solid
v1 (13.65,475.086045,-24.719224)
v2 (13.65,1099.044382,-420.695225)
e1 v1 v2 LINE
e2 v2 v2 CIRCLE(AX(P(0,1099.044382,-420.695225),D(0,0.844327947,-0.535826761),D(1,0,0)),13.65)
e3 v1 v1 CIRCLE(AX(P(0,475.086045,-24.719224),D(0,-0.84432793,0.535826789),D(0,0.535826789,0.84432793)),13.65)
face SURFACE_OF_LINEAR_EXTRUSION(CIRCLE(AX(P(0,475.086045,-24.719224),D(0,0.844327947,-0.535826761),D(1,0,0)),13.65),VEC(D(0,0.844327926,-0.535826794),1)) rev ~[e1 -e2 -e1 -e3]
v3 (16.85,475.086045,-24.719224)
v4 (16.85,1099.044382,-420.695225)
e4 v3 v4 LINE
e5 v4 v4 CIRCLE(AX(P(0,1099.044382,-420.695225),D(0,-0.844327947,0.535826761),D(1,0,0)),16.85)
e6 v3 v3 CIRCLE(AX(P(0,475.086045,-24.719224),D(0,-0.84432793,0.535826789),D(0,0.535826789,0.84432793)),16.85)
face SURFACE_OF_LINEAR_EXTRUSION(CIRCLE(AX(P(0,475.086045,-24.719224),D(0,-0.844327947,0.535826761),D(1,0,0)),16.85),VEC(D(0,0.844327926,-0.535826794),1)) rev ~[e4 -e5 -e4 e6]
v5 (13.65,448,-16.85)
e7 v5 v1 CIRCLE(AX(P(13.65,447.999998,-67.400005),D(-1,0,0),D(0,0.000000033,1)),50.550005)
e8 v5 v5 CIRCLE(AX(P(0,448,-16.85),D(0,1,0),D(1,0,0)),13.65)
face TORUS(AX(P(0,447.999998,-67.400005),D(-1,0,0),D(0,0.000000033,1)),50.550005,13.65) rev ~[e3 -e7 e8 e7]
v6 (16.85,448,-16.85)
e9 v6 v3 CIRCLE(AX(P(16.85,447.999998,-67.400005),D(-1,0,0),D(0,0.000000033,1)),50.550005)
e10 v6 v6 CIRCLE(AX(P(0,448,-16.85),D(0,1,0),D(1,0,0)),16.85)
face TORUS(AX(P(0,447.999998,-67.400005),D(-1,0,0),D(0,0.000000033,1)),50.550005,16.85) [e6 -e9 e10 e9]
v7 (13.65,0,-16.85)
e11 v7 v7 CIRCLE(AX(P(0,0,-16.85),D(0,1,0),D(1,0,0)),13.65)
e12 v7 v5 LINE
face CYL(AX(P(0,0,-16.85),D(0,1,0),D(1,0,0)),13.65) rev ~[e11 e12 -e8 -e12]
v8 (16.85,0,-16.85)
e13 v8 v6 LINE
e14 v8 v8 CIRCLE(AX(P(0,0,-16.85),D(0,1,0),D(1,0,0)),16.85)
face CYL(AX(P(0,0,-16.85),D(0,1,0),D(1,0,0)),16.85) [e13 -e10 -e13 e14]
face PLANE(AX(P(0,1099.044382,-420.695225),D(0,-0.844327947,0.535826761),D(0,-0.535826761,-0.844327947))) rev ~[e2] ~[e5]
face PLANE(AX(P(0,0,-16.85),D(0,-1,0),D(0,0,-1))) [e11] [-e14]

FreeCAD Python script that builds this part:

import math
import FreeCAD as App
import Part
import Sketcher
from FreeCAD import Vector
Q = App.Units.Quantity

doc = App.newDocument("Part")
params = doc.addObject("Spreadsheet::Sheet", "Params")
for row, (alias, value) in enumerate([
    ("sketch1_diameter", "33.7 mm"),
    ("sketch1_diameter2", "27.3 mm"),
    ("sketch2_width", "448 mm"),
    ("sketch2_length", "739 mm"),
], start=1):
    params.set(f"A{row}", alias)
    params.set(f"B{row}", "=" + value)
    params.setAlias(f"B{row}", alias)

body = doc.addObject("PartDesign::Body", "Body")

sketch1 = body.newObject("Sketcher::SketchObject", "Sketch")
sketch1.AttachmentSupport = (doc.getObject("XZ_Plane"), [""])
sketch1.MapMode = "FlatFace"
sketch1.addGeometry([
    Part.Circle(Vector(0, -17, 0), Vector(0, 0, 1), 17),
    Part.Circle(Vector(0, -17, 0), Vector(0, 0, 1), 14),
], False)
sketch1.addConstraint([
    Sketcher.Constraint("Coincident", 1, 3, 0, 3),
    Sketcher.Constraint("PointOnObject", 0, 3, -2),
    Sketcher.Constraint("Diameter", 0, Q("33.7 mm")),
    Sketcher.Constraint("Diameter", 1, Q("27.3 mm")),
    Sketcher.Constraint("DistanceY", 0, 3, -1, 1, Q("16.85 mm")),
])
sketch1.setExpression("Constraints[2]", "Params.sketch1_diameter")
sketch1.setExpression("Constraints[3]", "Params.sketch1_diameter2")

sketch2 = body.newObject("Sketcher::SketchObject", "Sketch001")
sketch2.AttachmentSupport = (doc.getObject("YZ_Plane"), [""])
sketch2.MapMode = "FlatFace"
sketch2.addGeometry([
    Part.LineSegment(Vector(0, 0, 0), Vector(448, 0, 0)),
    Part.ArcOfCircle(Part.Circle(Vector(448, -67, 0), Vector(0, 0, 1), 67), math.radians(58), math.radians(90)),
    Part.LineSegment(Vector(484, -10, 0), Vector(1108, -406, 0)),
], False)
sketch2.addConstraint([
    Sketcher.Constraint("Tangent", 0, 2, 1, 2),
    Sketcher.Constraint("Tangent", 1, 1, 2, 1),
    Sketcher.Constraint("Horizontal", 0),
    Sketcher.Constraint("Coincident", 0, 1, -1, 1),
    Sketcher.Constraint("DistanceX", 0, 1, 0, 2, Q("448 mm")),
    Sketcher.Constraint("Distance", 2, Q("739 mm")),
    Sketcher.Constraint("Angle", 2, Q("-32.4 deg")),
    Sketcher.Constraint("Radius", 1, Q("67.400005 mm")),
])
sketch2.setExpression("Constraints[4]", "Params.sketch2_width")
sketch2.setExpression("Constraints[5]", "Params.sketch2_length")
doc.recompute()

additivepipe = body.newObject("PartDesign::AdditivePipe", "AdditivePipe")
additivepipe.Profile = sketch1
additivepipe.Spine = (sketch2, ["Edge1", "Edge2", "Edge3"])

doc.recompute()
